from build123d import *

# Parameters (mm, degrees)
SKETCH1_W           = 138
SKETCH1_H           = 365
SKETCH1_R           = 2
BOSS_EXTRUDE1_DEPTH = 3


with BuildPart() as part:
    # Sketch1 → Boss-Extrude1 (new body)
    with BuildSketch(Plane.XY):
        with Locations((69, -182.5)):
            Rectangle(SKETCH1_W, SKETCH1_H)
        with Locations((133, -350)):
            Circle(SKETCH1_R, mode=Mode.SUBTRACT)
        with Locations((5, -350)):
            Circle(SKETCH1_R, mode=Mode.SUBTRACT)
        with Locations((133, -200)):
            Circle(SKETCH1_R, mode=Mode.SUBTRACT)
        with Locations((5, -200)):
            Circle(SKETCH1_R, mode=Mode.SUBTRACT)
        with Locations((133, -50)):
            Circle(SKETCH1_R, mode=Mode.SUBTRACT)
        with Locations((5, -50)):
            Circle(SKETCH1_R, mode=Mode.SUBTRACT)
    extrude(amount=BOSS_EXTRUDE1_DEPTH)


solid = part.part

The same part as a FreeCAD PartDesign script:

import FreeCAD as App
import Part
import Sketcher
from FreeCAD import Vector

doc = App.newDocument("Part")
body = doc.addObject("PartDesign::Body", "Body")

# Sketch on XY plane
sketch1 = doc.addObject("Sketcher::SketchObject", "Sketch")
body.addObject(sketch1)
sketch1.AttachmentSupport = (doc.XY_Plane, [""])
sketch1.MapMode = "FlatFace"
sketch1.addGeometry([
    Part.LineSegment(Vector(0, 0, 0), Vector(0, -365, 0)),  # 0
    Part.LineSegment(Vector(0, -365, 0), Vector(138, -365, 0)),  # 1
    Part.LineSegment(Vector(138, -365, 0), Vector(138, 0, 0)),  # 2
    Part.LineSegment(Vector(138, 0, 0), Vector(0, 0, 0)),  # 3
    Part.Circle(Vector(5, -350, 0), Vector(0, 0, 1), 2),  # 4
    Part.Circle(Vector(133, -350, 0), Vector(0, 0, 1), 2),  # 5
    Part.Circle(Vector(5, -200, 0), Vector(0, 0, 1), 2),  # 6
    Part.Circle(Vector(5, -50, 0), Vector(0, 0, 1), 2),  # 7
    Part.Circle(Vector(133, -200, 0), Vector(0, 0, 1), 2),  # 8
    Part.Circle(Vector(133, -50, 0), Vector(0, 0, 1), 2),  # 9
], False)
sketch1.addConstraint([
    Sketcher.Constraint("Coincident", 0, 2, 1, 1),
    Sketcher.Constraint("Coincident", 1, 2, 2, 1),
    Sketcher.Constraint("Coincident", 2, 2, 3, 1),
    Sketcher.Constraint("Coincident", 3, 2, 0, 1),
    Sketcher.Constraint("Vertical", 0),
    Sketcher.Constraint("Horizontal", 1),
    Sketcher.Constraint("Vertical", 2),
    Sketcher.Constraint("Horizontal", 3),
    Sketcher.Constraint("Coincident", 3, 2, -1, 1),
    Sketcher.Constraint("Equal", 4, 5),
    Sketcher.Constraint("Equal", 5, 6),
    Sketcher.Constraint("Equal", 6, 7),
    Sketcher.Constraint("Equal", 7, 8),
    Sketcher.Constraint("Equal", 8, 9),
    Sketcher.Constraint("Horizontal", 4, 3, 5, 3),
    Sketcher.Constraint("Horizontal", 6, 3, 8, 3),
    Sketcher.Constraint("Horizontal", 7, 3, 9, 3),
    Sketcher.Constraint("Vertical", 4, 3, 6, 3),
    Sketcher.Constraint("Vertical", 6, 3, 7, 3),
    Sketcher.Constraint("Vertical", 5, 3, 8, 3),
    Sketcher.Constraint("Vertical", 8, 3, 9, 3),
    Sketcher.Constraint("Diameter", 4, 4.0),
    Sketcher.Constraint("DistanceX", 1, 1, 1, 2, 138.0),
    Sketcher.Constraint("DistanceY", 0, 2, 0, 1, 365.0),
    Sketcher.Constraint("DistanceX", -1, 1, 4, 3, 5.0),
    Sketcher.Constraint("DistanceY", 4, 3, -1, 1, 350.0),
    Sketcher.Constraint("DistanceX", -1, 1, 5, 3, 133.0),
    Sketcher.Constraint("DistanceY", 6, 3, -1, 1, 200.0),
    Sketcher.Constraint("DistanceY", 7, 3, -1, 1, 50.0),
])
pad1 = doc.addObject("PartDesign::Pad", "Pad")
body.addObject(pad1)
pad1.Profile = sketch1
pad1.Length = 3

doc.recompute()
